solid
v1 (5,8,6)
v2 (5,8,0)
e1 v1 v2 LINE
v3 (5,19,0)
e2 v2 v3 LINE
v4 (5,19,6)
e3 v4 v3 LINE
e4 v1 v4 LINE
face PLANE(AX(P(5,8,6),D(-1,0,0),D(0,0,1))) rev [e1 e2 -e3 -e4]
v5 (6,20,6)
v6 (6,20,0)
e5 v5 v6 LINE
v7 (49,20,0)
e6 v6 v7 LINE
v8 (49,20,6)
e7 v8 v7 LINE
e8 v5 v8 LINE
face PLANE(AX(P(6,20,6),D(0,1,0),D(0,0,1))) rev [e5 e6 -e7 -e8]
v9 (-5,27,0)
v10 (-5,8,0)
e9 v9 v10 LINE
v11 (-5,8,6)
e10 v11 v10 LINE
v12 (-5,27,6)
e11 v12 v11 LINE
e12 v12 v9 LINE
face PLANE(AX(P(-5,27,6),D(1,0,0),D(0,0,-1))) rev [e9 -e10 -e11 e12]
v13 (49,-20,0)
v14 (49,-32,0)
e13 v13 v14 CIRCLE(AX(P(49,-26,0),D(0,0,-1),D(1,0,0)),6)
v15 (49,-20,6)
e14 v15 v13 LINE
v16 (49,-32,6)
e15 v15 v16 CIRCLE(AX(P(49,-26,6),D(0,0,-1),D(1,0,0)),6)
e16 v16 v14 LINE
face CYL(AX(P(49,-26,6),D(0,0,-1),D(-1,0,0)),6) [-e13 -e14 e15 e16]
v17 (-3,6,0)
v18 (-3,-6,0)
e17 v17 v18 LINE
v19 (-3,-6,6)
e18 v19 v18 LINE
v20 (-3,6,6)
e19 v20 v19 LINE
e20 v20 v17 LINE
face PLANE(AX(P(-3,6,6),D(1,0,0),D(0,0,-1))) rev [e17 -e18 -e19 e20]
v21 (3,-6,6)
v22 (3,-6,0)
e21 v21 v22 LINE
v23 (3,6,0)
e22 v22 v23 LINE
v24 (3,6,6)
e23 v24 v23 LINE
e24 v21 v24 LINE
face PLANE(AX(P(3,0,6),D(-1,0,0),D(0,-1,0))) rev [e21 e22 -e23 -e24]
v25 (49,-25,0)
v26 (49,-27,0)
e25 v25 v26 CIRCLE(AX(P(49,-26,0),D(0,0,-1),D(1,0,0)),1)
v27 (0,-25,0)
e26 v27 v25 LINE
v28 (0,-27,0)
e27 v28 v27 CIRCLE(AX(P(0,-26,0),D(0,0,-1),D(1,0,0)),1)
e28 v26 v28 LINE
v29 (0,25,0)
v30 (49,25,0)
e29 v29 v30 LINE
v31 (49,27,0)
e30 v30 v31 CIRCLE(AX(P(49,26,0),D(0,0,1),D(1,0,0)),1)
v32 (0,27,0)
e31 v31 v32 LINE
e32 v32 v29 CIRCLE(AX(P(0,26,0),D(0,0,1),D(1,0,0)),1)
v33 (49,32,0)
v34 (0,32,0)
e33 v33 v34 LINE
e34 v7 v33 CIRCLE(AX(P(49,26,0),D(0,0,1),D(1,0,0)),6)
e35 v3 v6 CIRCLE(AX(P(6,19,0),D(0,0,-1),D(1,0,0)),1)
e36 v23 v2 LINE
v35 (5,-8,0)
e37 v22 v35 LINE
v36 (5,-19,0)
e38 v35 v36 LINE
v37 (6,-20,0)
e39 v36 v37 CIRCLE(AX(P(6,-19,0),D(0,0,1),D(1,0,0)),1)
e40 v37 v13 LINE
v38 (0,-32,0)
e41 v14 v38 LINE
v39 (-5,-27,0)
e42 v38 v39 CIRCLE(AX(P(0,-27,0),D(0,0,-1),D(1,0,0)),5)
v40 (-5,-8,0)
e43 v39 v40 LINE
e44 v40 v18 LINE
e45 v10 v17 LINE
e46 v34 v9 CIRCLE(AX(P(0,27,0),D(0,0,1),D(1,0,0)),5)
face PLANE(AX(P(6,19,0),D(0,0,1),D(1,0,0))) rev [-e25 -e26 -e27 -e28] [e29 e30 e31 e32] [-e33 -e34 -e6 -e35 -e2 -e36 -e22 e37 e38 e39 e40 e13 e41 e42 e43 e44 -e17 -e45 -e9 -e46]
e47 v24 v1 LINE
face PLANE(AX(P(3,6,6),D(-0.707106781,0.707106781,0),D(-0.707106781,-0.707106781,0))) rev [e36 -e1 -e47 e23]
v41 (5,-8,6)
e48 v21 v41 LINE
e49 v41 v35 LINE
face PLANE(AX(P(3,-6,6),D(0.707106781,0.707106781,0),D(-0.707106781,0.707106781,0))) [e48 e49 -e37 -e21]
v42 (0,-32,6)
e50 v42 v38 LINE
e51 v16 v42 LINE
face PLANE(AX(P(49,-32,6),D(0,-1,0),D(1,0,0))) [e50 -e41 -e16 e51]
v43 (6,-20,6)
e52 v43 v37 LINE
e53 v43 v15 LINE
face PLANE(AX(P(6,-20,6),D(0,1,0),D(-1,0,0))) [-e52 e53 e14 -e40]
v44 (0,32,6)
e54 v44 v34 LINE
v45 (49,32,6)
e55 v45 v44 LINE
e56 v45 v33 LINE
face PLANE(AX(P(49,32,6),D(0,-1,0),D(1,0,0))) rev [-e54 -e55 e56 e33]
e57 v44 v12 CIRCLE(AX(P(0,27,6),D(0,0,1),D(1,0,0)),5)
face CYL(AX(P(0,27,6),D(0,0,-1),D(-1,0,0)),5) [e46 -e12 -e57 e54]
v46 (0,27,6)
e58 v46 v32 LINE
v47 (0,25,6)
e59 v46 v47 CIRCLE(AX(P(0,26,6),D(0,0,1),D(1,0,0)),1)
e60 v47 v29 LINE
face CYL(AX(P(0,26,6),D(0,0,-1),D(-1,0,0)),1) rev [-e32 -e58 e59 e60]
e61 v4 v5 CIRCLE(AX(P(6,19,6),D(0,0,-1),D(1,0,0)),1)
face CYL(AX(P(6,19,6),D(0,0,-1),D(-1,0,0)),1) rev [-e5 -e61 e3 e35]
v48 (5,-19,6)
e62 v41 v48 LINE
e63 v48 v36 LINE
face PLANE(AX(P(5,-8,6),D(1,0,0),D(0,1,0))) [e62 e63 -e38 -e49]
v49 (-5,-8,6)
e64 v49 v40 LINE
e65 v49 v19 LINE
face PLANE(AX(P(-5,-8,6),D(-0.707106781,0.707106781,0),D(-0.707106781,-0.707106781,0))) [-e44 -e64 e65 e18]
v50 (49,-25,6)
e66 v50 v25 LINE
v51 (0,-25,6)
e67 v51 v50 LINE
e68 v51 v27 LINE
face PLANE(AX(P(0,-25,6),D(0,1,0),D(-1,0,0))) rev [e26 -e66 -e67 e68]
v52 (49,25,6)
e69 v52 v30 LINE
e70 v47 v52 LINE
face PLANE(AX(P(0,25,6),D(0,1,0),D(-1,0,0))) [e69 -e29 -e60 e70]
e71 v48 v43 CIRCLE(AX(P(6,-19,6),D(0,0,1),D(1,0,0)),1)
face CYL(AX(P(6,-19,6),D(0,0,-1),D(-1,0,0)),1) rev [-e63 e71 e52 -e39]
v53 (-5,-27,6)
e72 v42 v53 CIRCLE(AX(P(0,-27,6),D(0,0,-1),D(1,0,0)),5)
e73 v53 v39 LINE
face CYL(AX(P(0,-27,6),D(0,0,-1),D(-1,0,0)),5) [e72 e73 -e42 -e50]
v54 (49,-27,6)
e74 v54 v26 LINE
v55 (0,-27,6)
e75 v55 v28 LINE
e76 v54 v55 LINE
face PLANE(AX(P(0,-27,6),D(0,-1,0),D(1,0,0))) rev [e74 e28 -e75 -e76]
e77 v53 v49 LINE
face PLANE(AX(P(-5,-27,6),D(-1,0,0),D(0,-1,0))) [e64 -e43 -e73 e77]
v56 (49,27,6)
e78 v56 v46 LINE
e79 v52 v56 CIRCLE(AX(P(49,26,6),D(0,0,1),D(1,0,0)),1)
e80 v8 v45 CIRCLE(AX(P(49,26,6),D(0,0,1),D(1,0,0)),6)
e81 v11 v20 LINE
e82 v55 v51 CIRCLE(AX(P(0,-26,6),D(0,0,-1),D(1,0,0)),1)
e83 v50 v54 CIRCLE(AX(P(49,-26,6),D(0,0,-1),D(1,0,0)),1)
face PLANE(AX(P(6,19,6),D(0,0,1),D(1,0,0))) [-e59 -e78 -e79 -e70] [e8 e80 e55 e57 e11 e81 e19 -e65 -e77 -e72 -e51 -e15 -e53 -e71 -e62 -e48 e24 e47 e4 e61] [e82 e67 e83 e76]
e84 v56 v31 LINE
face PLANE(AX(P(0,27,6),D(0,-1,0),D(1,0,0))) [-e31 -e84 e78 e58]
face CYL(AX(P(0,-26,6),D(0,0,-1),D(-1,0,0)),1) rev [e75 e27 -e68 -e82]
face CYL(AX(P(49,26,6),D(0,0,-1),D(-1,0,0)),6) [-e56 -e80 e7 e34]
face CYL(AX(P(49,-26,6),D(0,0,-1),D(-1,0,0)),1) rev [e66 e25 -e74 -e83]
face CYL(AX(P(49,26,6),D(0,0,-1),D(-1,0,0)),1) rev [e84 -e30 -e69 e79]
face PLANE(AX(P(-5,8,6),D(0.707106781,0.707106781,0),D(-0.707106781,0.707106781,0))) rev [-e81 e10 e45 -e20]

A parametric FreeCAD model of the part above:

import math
import FreeCAD as App
import Part
import Sketcher

doc = App.newDocument("Part")
body = doc.addObject("PartDesign::Body", "Body")

# Sketch on XY plane
sketch1 = body.newObject("Sketcher::SketchObject", "Sketch")
sketch1.AttachmentSupport = (doc.getObject("XY_Plane"), [""])
sketch1.MapMode = "FlatFace"
sketch1.addGeometry(Part.LineSegment(App.Vector(3, 6, 0), App.Vector(5, 8, 0)), False)
sketch1.addGeometry(Part.LineSegment(App.Vector(5, 8, 0), App.Vector(5, 19, 0)), False)
sketch1.addGeometry(Part.ArcOfCircle(Part.Circle(App.Vector(6, 19, 0), App.Vector(0, 0, 1), 1), math.radians(90), math.radians(180)), False)
sketch1.addGeometry(Part.LineSegment(App.Vector(6, 20, 0), App.Vector(49, 20, 0)), False)
sketch1.addGeometry(Part.ArcOfCircle(Part.Circle(App.Vector(49, 26, 0), App.Vector(0, 0, 1), 6), math.radians(-90), math.radians(90)), False)
sketch1.addGeometry(Part.LineSegment(App.Vector(49, 32, 0), App.Vector(0, 32, 0)), False)
sketch1.addGeometry(Part.ArcOfCircle(Part.Circle(App.Vector(0, 27, 0), App.Vector(0, 0, 1), 5), math.radians(90), math.radians(180)), False)
sketch1.addGeometry(Part.LineSegment(App.Vector(-5, 27, 0), App.Vector(-5, 8, 0)), False)
sketch1.addGeometry(Part.LineSegment(App.Vector(-5, 8, 0), App.Vector(-3, 6, 0)), False)
sketch1.addGeometry(Part.LineSegment(App.Vector(-3, 6, 0), App.Vector(-3, 0, 0)), False)
sketch1.addGeometry(Part.LineSegment(App.Vector(-3, 0, 0), App.Vector(3, 0, 0)), False)
sketch1.addGeometry(Part.LineSegment(App.Vector(3, 0, 0), App.Vector(3, 6, 0)), False)
sketch1.addGeometry(Part.ArcOfCircle(Part.Circle(App.Vector(0, 26, 0), App.Vector(0, 0, 1), 1), math.radians(90), math.radians(270)), False)
sketch1.addGeometry(Part.LineSegment(App.Vector(0, 27, 0), App.Vector(49, 27, 0)), False)
sketch1.addGeometry(Part.ArcOfCircle(Part.Circle(App.Vector(49, 26, 0), App.Vector(0, 0, 1), 1), math.radians(-90), math.radians(90)), False)
sketch1.addGeometry(Part.LineSegment(App.Vector(49, 25, 0), App.Vector(0, 25, 0)), False)
sketch1.addConstraint(Sketcher.Constraint("Coincident", 0, 2, 1, 1))
sketch1.addConstraint(Sketcher.Constraint("Tangent", 1, 2, 2, 2))
sketch1.addConstraint(Sketcher.Constraint("Tangent", 2, 1, 3, 1))
sketch1.addConstraint(Sketcher.Constraint("Tangent", 3, 2, 4, 1))
sketch1.addConstraint(Sketcher.Constraint("Tangent", 4, 2, 5, 1))
sketch1.addConstraint(Sketcher.Constraint("Tangent", 5, 2, 6, 1))
sketch1.addConstraint(Sketcher.Constraint("Tangent", 6, 2, 7, 1))
sketch1.addConstraint(Sketcher.Constraint("Coincident", 7, 2, 8, 1))
sketch1.addConstraint(Sketcher.Constraint("Coincident", 8, 2, 9, 1))
sketch1.addConstraint(Sketcher.Constraint("Coincident", 9, 2, 10, 1))
sketch1.addConstraint(Sketcher.Constraint("Coincident", 10, 2, 11, 1))
sketch1.addConstraint(Sketcher.Constraint("Coincident", 11, 2, 0, 1))
sketch1.addConstraint(Sketcher.Constraint("Tangent", 12, 1, 13, 1))
sketch1.addConstraint(Sketcher.Constraint("Tangent", 13, 2, 14, 2))
sketch1.addConstraint(Sketcher.Constraint("Tangent", 14, 1, 15, 1))
sketch1.addConstraint(Sketcher.Constraint("Tangent", 15, 2, 12, 2))
sketch1.addConstraint(Sketcher.Constraint("Vertical", 1))
sketch1.addConstraint(Sketcher.Constraint("Horizontal", 3))
sketch1.addConstraint(Sketcher.Constraint("Horizontal", 5))
sketch1.addConstraint(Sketcher.Constraint("Vertical", 7))
sketch1.addConstraint(Sketcher.Constraint("Vertical", 9))
sketch1.addConstraint(Sketcher.Constraint("Horizontal", 10))
sketch1.addConstraint(Sketcher.Constraint("Vertical", 11))
sketch1.addConstraint(Sketcher.Constraint("Horizontal", 13))
sketch1.addConstraint(Sketcher.Constraint("Horizontal", 15))
sketch1.addConstraint(Sketcher.Constraint("Coincident", 14, 3, 4, 3))
sketch1.addConstraint(Sketcher.Constraint("Coincident", 12, 1, 6, 3))
sketch1.addConstraint(Sketcher.Constraint("Equal", 2, 12))
sketch1.addConstraint(Sketcher.Constraint("Symmetric", 9, 2, 10, 2, -1, 1))
sketch1.addConstraint(Sketcher.Constraint("Symmetric", 0, 2, 7, 2, -2))
sketch1.addConstraint(Sketcher.Constraint("PointOnObject", 6, 3, -2))
sketch1.addConstraint(Sketcher.Constraint("Perpendicular", 0, 8))
sketch1.addConstraint(Sketcher.Constraint("Horizontal", 8, 2, 11, 2))
sketch1.addConstraint(Sketcher.Constraint("Equal", 10, 9))
sketch1.addConstraint(Sketcher.Constraint("Radius", 2, 1.0))
sketch1.addConstraint(Sketcher.Constraint("Radius", 4, 6.0))
sketch1.addConstraint(Sketcher.Constraint("DistanceX", 3, 1, 3, 2, 43.0))
sketch1.addConstraint(Sketcher.Constraint("DistanceX", 10, 1, 10, 2, 6.0))
sketch1.addConstraint(Sketcher.Constraint("DistanceY", 1, 1, 1, 2, 11.0))
pad1 = body.newObject("PartDesign::Pad", "Pad")
pad1.Profile = sketch1
pad1.Length = 6
doc.recompute()

mirrored = body.newObject("PartDesign::Mirrored", "Mirrored")
mirrored.Originals = [pad1]
mirrored.MirrorPlane = (doc.getObject("XZ_Plane"), [""])
body.Tip = mirrored

doc.recompute()
